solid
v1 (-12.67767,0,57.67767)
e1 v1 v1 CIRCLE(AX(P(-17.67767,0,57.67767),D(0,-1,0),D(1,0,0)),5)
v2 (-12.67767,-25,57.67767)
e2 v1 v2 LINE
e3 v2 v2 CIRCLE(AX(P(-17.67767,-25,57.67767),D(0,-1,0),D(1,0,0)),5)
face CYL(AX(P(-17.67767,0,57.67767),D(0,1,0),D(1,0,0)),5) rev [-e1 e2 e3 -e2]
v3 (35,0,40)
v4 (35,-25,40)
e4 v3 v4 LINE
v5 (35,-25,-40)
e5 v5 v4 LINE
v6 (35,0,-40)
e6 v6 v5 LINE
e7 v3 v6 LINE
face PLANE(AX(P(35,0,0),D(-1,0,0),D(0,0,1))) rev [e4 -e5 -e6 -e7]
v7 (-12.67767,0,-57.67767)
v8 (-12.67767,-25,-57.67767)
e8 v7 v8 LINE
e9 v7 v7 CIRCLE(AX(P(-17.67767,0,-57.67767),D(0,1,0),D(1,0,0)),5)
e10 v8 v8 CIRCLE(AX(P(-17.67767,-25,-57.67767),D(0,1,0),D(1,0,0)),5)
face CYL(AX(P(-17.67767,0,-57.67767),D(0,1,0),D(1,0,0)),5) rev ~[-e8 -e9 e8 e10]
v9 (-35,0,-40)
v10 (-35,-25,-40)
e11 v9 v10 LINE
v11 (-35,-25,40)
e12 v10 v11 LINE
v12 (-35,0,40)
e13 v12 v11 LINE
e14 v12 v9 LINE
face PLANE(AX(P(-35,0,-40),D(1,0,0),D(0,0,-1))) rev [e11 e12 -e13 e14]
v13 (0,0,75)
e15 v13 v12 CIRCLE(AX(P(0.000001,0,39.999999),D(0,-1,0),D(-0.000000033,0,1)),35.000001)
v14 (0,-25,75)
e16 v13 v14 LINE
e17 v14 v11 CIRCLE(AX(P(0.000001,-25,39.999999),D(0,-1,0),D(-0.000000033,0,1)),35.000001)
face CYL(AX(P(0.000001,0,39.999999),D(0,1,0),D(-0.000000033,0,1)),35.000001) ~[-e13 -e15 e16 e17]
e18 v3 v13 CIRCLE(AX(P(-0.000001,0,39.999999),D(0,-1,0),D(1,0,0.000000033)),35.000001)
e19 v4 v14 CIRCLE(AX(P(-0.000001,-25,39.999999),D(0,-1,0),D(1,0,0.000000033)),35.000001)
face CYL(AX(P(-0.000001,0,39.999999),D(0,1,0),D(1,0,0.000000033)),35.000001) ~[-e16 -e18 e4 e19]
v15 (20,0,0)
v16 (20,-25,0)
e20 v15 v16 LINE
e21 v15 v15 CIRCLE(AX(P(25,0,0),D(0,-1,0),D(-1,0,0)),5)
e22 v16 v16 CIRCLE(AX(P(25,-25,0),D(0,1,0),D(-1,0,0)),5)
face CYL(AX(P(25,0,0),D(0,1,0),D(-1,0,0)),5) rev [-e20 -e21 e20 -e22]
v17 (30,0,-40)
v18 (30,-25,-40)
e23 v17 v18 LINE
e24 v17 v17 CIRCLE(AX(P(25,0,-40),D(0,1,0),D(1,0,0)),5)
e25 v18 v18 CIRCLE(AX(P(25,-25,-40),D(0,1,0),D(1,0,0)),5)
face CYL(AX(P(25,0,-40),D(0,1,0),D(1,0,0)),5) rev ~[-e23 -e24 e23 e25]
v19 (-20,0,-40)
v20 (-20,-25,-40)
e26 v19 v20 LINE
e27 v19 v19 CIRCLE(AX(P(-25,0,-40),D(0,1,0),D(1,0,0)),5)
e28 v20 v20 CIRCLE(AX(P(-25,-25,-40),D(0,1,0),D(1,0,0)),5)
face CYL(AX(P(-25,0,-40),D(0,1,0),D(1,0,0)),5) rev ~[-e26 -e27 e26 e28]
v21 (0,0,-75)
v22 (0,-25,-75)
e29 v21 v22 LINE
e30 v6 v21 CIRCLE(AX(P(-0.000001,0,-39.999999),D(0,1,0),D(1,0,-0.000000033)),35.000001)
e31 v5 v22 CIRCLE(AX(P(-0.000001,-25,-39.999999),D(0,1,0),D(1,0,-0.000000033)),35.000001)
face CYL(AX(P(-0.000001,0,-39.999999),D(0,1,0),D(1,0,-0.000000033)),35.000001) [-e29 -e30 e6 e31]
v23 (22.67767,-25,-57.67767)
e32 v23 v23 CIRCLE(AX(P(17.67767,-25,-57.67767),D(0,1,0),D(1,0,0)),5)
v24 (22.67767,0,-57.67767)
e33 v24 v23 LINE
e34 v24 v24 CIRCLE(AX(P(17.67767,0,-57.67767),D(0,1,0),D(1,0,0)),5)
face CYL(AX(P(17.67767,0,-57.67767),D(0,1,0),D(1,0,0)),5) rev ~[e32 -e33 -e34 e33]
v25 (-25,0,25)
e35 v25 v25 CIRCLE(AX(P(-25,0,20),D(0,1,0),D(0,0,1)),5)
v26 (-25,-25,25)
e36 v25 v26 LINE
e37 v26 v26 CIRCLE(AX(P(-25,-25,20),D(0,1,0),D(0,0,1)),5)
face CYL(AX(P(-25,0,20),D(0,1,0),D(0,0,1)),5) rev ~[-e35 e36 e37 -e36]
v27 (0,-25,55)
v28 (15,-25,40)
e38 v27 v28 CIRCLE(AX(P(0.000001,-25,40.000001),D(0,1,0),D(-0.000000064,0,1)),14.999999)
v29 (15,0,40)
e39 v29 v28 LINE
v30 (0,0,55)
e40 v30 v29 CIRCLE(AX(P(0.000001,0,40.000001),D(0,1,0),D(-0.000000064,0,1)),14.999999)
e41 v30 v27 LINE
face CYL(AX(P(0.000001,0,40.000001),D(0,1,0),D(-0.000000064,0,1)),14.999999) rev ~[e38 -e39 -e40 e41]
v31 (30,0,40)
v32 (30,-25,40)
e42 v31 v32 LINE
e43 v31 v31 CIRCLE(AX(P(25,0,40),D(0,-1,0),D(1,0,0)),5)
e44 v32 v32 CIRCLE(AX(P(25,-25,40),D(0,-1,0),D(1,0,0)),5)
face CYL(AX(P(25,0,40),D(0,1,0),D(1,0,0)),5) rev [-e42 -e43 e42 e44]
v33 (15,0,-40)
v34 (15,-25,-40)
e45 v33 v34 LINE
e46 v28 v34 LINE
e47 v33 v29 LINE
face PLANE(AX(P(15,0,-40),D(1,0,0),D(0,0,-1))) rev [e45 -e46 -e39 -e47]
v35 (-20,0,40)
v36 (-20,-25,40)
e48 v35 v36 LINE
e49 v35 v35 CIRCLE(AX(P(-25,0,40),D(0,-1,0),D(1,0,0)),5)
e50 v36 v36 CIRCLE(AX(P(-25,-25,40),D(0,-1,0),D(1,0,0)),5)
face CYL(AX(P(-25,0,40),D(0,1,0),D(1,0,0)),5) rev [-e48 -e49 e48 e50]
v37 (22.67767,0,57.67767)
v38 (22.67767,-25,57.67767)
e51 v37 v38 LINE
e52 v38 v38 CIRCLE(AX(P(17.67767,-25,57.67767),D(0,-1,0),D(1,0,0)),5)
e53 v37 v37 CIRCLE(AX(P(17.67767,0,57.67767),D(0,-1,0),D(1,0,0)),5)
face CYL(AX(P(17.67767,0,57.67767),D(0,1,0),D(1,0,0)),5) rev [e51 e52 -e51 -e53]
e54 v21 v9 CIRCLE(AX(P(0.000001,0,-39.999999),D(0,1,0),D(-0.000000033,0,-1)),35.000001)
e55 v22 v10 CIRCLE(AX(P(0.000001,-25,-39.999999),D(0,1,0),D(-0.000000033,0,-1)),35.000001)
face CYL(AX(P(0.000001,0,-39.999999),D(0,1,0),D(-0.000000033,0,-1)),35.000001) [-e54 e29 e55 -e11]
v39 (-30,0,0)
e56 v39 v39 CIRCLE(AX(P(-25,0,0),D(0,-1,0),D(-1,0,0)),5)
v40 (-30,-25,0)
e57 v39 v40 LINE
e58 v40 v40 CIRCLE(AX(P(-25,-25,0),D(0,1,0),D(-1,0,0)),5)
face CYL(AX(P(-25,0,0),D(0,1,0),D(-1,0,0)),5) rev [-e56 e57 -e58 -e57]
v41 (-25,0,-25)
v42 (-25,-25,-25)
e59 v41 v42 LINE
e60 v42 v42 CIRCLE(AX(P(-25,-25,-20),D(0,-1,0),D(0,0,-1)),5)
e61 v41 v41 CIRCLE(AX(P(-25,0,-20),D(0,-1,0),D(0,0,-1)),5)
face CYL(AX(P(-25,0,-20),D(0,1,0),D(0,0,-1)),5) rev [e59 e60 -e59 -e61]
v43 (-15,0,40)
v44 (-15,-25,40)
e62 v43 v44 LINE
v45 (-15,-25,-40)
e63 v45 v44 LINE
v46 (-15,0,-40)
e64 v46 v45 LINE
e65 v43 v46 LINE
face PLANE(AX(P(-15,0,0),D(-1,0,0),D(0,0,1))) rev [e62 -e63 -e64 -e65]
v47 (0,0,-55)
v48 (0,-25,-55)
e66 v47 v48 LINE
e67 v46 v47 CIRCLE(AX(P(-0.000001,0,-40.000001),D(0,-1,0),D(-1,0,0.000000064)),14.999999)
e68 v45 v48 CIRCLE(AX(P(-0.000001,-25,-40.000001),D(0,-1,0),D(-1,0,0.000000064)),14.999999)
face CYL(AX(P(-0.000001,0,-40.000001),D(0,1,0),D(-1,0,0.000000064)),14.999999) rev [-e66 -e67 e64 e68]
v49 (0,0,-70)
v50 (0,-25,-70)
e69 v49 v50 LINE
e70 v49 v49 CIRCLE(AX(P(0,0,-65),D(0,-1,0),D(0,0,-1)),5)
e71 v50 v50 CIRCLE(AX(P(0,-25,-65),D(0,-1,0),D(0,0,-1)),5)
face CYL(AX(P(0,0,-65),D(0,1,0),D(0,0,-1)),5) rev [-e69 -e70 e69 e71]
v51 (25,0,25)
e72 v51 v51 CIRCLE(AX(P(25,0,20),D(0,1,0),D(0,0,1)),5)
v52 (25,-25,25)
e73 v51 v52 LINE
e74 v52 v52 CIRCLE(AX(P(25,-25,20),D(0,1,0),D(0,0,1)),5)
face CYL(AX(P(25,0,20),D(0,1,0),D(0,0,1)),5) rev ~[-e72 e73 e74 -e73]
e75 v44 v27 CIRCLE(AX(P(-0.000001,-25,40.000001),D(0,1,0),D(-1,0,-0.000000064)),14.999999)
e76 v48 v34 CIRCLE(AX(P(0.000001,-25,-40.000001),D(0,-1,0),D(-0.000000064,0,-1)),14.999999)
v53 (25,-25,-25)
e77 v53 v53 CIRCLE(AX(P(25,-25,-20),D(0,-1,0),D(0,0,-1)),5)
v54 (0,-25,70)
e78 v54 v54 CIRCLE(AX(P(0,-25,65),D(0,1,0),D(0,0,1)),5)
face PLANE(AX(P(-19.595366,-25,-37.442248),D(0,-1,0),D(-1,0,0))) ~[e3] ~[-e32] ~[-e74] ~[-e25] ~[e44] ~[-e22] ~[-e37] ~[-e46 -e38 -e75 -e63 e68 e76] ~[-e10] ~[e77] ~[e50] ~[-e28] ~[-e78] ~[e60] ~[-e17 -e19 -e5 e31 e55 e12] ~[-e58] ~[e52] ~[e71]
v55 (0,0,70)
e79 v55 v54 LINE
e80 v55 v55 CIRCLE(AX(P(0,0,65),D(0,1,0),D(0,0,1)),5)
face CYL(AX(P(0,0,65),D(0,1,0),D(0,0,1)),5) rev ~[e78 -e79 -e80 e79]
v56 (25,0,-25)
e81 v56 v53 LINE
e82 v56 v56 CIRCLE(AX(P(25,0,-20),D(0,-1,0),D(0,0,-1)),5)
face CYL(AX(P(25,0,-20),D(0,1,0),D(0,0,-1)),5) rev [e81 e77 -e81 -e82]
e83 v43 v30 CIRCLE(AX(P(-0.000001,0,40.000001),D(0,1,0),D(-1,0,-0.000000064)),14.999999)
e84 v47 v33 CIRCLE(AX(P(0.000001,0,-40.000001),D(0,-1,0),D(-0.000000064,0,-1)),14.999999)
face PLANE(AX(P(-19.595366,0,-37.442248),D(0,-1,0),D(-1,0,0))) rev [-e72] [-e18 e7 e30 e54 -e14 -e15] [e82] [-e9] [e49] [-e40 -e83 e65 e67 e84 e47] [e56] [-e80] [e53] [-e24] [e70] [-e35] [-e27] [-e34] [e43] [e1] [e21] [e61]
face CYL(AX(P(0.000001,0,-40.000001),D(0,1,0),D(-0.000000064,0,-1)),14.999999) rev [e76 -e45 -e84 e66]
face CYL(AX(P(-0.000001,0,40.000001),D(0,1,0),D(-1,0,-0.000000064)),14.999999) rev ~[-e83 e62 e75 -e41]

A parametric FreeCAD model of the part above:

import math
import FreeCAD as App
import Part
import Sketcher

V = App.Vector

doc = App.newDocument("Part")
params = doc.addObject("Spreadsheet::Sheet", "Params")
for row, (alias, value) in enumerate([
    ("sketch1_diameter", "10 mm"),
    ("sketch1_radius", "35.000001 mm"),
    ("sketch1_radius2", "14.999999 mm"),
    ("sketch1_height", "40 mm"),
    ("pad1_length", "25 mm"),
], start=1):
    params.set(f"A{row}", alias)
    params.set(f"B{row}", "=" + value)
    params.setAlias(f"B{row}", alias)

body = doc.addObject("PartDesign::Body", "Body")

# Sketch on XZ plane
sketch1 = body.newObject("Sketcher::SketchObject", "Sketch")
sketch1.AttachmentSupport = (doc.getObject("XZ_Plane"), [""])
sketch1.MapMode = "FlatFace"
sketch1.addGeometry([
    Part.ArcOfCircle(Part.Circle(V(0.000001, 39.999999, 0), V(0, 0, 1), 35.000001), math.radians(90.000002), math.radians(179.999998)),  # 0
    Part.LineSegment(V(-35, 40, 0), V(-35, 0, 0)),  # 1
    Part.LineSegment(V(-35, 0, 0), V(-30, 0, 0)),  # 2
    Part.ArcOfCircle(Part.Circle(V(-25, 0, 0), V(0, 0, 1), 5), math.radians(0), math.radians(180)),  # 3
    Part.LineSegment(V(-20, 0, 0), V(-15, 0, 0)),  # 4
    Part.LineSegment(V(-15, 0, 0), V(-15, 40, 0)),  # 5
    Part.ArcOfCircle(Part.Circle(V(-0.000001, 40.000001, 0), V(0, 0, 1), 14.999999), math.radians(89.999996), math.radians(180.000004)),  # 6
    Part.ArcOfCircle(Part.Circle(V(0.000001, 40.000001, 0), V(0, 0, 1), 14.999999), math.radians(-0.000004), math.radians(90.000004)),  # 7
    Part.LineSegment(V(15, 40, 0), V(15, 0, 0)),  # 8
    Part.LineSegment(V(15, 0, 0), V(20, 0, 0)),  # 9
    Part.ArcOfCircle(Part.Circle(V(25, 0, 0), V(0, 0, 1), 5), math.radians(0), math.radians(180)),  # 10
    Part.LineSegment(V(30, 0, 0), V(35, 0, 0)),  # 11
    Part.LineSegment(V(35, 0, 0), V(35, 40, 0)),  # 12
    Part.ArcOfCircle(Part.Circle(V(-0.000001, 39.999999, 0), V(0, 0, 1), 35.000001), math.radians(0.000002), math.radians(89.999998)),  # 13
    Part.Circle(V(-25, 20, 0), V(0, 0, 1), 5),  # 14
    Part.Circle(V(-25, 40, 0), V(0, 0, 1), 5),  # 15
    Part.Circle(V(25, 20, 0), V(0, 0, 1), 5),  # 16
    Part.Circle(V(25, 40, 0), V(0, 0, 1), 5),  # 17
    Part.Circle(V(-17.67767, 57.67767, 0), V(0, 0, 1), 5),  # 18
    Part.Circle(V(0, 65, 0), V(0, 0, 1), 5),  # 19
    Part.Circle(V(17.67767, 57.67767, 0), V(0, 0, 1), 5),  # 20
], False)
sketch1.addConstraint([
    Sketcher.Constraint("Tangent", 0, 2, 1, 1),
    Sketcher.Constraint("Coincident", 1, 2, 2, 1),
    Sketcher.Constraint("Coincident", 2, 2, 3, 2),
    Sketcher.Constraint("Coincident", 3, 1, 4, 1),
    Sketcher.Constraint("Coincident", 4, 2, 5, 1),
    Sketcher.Constraint("Tangent", 5, 2, 6, 2),
    Sketcher.Constraint("Tangent", 6, 1, 7, 2),
    Sketcher.Constraint("Tangent", 7, 1, 8, 1),
    Sketcher.Constraint("Coincident", 8, 2, 9, 1),
    Sketcher.Constraint("Coincident", 9, 2, 10, 2),
    Sketcher.Constraint("Coincident", 10, 1, 11, 1),
    Sketcher.Constraint("Coincident", 11, 2, 12, 1),
    Sketcher.Constraint("Tangent", 12, 2, 13, 1),
    Sketcher.Constraint("Tangent", 13, 2, 0, 1),
    Sketcher.Constraint("Vertical", 1),
    Sketcher.Constraint("Horizontal", 2),
    Sketcher.Constraint("Horizontal", 4),
    Sketcher.Constraint("Vertical", 5),
    Sketcher.Constraint("Vertical", 8),
    Sketcher.Constraint("Horizontal", 9),
    Sketcher.Constraint("Horizontal", 11),
    Sketcher.Constraint("Vertical", 12),
    Sketcher.Constraint("Coincident", 6, 3, 0, 3),
    Sketcher.Constraint("Equal", 6, 7),
    Sketcher.Constraint("Equal", 3, 10),
    Sketcher.Constraint("Equal", 0, 13),
    Sketcher.Constraint("Equal", 10, 14),
    Sketcher.Constraint("Equal", 14, 15),
    Sketcher.Constraint("Equal", 15, 16),
    Sketcher.Constraint("Equal", 16, 17),
    Sketcher.Constraint("Equal", 17, 18),
    Sketcher.Constraint("Equal", 18, 19),
    Sketcher.Constraint("Equal", 19, 20),
    Sketcher.Constraint("Symmetric", 3, 3, 10, 3, -1, 1),
    Sketcher.Constraint("Symmetric", 4, 2, 8, 2, -1, 1),
    Sketcher.Constraint("Symmetric", 14, 3, 16, 3, -2),
    Sketcher.Constraint("Symmetric", 15, 3, 17, 3, -2),
    Sketcher.Constraint("Symmetric", 18, 3, 20, 3, -2),
    Sketcher.Constraint("PointOnObject", 3, 3, -1),
    Sketcher.Constraint("PointOnObject", 19, 3, -2),
    Sketcher.Constraint("PointOnObject", 1, 2, -1),
    Sketcher.Constraint("PointOnObject", 3, 1, -1),
    Sketcher.Constraint("PointOnObject", 6, 1, -2),
    Sketcher.Constraint("PointOnObject", 10, 1, -1),
    Sketcher.Constraint("PointOnObject", 13, 2, -2),
    Sketcher.Constraint("Horizontal", 13, 3, 15, 3),
    Sketcher.Constraint("Vertical", 3, 3, 14, 3),
    Sketcher.Constraint("Vertical", 14, 3, 15, 3),
    Sketcher.Constraint("Equal", 2, 4),
    Sketcher.Constraint("Diameter", 14, 10.0),
    Sketcher.Constraint("Radius", 0, 35.000001),
    Sketcher.Constraint("Radius", 6, 14.999999),
    Sketcher.Constraint("DistanceY", 1, 2, 1, 1, 40.0),
    Sketcher.Constraint("DistanceY", -1, 1, 14, 3, 20.0),
    Sketcher.Constraint("DistanceY", -1, 1, 19, 3, 65.0),
    Sketcher.Constraint("DistanceX", 18, 3, -1, 1, 17.67767),
    Sketcher.Constraint("DistanceY", -1, 1, 18, 3, 57.67767),
])
sketch1.setExpression("Constraints[49]", "Params.sketch1_diameter")
sketch1.setExpression("Constraints[50]", "Params.sketch1_radius")
sketch1.setExpression("Constraints[51]", "Params.sketch1_radius2")
sketch1.setExpression("Constraints[52]", "Params.sketch1_height")
pad1 = body.newObject("PartDesign::Pad", "Pad")
pad1.Profile = sketch1
pad1.setExpression("Length", "Params.pad1_length")
body2 = doc.addObject("PartDesign::Body", "Body001")
doc.recompute()

body2.BaseFeature = body
doc.recompute()

mirroring = doc.addObject("Part::Mirroring", "Mirroring")
mirroring.Source = body
mirroring.Base = V(0, 0, 0)
mirroring.Normal = V(0, 0, 1)
body3 = doc.addObject("PartDesign::Body", "Body002")
body3.BaseFeature = mirroring
boolean = body2.newObject("PartDesign::Boolean", "Boolean")
boolean.Type = "Fuse"
boolean.addObjects([body3])
doc.recompute()
mirroring.Visibility = False

doc.recompute()
